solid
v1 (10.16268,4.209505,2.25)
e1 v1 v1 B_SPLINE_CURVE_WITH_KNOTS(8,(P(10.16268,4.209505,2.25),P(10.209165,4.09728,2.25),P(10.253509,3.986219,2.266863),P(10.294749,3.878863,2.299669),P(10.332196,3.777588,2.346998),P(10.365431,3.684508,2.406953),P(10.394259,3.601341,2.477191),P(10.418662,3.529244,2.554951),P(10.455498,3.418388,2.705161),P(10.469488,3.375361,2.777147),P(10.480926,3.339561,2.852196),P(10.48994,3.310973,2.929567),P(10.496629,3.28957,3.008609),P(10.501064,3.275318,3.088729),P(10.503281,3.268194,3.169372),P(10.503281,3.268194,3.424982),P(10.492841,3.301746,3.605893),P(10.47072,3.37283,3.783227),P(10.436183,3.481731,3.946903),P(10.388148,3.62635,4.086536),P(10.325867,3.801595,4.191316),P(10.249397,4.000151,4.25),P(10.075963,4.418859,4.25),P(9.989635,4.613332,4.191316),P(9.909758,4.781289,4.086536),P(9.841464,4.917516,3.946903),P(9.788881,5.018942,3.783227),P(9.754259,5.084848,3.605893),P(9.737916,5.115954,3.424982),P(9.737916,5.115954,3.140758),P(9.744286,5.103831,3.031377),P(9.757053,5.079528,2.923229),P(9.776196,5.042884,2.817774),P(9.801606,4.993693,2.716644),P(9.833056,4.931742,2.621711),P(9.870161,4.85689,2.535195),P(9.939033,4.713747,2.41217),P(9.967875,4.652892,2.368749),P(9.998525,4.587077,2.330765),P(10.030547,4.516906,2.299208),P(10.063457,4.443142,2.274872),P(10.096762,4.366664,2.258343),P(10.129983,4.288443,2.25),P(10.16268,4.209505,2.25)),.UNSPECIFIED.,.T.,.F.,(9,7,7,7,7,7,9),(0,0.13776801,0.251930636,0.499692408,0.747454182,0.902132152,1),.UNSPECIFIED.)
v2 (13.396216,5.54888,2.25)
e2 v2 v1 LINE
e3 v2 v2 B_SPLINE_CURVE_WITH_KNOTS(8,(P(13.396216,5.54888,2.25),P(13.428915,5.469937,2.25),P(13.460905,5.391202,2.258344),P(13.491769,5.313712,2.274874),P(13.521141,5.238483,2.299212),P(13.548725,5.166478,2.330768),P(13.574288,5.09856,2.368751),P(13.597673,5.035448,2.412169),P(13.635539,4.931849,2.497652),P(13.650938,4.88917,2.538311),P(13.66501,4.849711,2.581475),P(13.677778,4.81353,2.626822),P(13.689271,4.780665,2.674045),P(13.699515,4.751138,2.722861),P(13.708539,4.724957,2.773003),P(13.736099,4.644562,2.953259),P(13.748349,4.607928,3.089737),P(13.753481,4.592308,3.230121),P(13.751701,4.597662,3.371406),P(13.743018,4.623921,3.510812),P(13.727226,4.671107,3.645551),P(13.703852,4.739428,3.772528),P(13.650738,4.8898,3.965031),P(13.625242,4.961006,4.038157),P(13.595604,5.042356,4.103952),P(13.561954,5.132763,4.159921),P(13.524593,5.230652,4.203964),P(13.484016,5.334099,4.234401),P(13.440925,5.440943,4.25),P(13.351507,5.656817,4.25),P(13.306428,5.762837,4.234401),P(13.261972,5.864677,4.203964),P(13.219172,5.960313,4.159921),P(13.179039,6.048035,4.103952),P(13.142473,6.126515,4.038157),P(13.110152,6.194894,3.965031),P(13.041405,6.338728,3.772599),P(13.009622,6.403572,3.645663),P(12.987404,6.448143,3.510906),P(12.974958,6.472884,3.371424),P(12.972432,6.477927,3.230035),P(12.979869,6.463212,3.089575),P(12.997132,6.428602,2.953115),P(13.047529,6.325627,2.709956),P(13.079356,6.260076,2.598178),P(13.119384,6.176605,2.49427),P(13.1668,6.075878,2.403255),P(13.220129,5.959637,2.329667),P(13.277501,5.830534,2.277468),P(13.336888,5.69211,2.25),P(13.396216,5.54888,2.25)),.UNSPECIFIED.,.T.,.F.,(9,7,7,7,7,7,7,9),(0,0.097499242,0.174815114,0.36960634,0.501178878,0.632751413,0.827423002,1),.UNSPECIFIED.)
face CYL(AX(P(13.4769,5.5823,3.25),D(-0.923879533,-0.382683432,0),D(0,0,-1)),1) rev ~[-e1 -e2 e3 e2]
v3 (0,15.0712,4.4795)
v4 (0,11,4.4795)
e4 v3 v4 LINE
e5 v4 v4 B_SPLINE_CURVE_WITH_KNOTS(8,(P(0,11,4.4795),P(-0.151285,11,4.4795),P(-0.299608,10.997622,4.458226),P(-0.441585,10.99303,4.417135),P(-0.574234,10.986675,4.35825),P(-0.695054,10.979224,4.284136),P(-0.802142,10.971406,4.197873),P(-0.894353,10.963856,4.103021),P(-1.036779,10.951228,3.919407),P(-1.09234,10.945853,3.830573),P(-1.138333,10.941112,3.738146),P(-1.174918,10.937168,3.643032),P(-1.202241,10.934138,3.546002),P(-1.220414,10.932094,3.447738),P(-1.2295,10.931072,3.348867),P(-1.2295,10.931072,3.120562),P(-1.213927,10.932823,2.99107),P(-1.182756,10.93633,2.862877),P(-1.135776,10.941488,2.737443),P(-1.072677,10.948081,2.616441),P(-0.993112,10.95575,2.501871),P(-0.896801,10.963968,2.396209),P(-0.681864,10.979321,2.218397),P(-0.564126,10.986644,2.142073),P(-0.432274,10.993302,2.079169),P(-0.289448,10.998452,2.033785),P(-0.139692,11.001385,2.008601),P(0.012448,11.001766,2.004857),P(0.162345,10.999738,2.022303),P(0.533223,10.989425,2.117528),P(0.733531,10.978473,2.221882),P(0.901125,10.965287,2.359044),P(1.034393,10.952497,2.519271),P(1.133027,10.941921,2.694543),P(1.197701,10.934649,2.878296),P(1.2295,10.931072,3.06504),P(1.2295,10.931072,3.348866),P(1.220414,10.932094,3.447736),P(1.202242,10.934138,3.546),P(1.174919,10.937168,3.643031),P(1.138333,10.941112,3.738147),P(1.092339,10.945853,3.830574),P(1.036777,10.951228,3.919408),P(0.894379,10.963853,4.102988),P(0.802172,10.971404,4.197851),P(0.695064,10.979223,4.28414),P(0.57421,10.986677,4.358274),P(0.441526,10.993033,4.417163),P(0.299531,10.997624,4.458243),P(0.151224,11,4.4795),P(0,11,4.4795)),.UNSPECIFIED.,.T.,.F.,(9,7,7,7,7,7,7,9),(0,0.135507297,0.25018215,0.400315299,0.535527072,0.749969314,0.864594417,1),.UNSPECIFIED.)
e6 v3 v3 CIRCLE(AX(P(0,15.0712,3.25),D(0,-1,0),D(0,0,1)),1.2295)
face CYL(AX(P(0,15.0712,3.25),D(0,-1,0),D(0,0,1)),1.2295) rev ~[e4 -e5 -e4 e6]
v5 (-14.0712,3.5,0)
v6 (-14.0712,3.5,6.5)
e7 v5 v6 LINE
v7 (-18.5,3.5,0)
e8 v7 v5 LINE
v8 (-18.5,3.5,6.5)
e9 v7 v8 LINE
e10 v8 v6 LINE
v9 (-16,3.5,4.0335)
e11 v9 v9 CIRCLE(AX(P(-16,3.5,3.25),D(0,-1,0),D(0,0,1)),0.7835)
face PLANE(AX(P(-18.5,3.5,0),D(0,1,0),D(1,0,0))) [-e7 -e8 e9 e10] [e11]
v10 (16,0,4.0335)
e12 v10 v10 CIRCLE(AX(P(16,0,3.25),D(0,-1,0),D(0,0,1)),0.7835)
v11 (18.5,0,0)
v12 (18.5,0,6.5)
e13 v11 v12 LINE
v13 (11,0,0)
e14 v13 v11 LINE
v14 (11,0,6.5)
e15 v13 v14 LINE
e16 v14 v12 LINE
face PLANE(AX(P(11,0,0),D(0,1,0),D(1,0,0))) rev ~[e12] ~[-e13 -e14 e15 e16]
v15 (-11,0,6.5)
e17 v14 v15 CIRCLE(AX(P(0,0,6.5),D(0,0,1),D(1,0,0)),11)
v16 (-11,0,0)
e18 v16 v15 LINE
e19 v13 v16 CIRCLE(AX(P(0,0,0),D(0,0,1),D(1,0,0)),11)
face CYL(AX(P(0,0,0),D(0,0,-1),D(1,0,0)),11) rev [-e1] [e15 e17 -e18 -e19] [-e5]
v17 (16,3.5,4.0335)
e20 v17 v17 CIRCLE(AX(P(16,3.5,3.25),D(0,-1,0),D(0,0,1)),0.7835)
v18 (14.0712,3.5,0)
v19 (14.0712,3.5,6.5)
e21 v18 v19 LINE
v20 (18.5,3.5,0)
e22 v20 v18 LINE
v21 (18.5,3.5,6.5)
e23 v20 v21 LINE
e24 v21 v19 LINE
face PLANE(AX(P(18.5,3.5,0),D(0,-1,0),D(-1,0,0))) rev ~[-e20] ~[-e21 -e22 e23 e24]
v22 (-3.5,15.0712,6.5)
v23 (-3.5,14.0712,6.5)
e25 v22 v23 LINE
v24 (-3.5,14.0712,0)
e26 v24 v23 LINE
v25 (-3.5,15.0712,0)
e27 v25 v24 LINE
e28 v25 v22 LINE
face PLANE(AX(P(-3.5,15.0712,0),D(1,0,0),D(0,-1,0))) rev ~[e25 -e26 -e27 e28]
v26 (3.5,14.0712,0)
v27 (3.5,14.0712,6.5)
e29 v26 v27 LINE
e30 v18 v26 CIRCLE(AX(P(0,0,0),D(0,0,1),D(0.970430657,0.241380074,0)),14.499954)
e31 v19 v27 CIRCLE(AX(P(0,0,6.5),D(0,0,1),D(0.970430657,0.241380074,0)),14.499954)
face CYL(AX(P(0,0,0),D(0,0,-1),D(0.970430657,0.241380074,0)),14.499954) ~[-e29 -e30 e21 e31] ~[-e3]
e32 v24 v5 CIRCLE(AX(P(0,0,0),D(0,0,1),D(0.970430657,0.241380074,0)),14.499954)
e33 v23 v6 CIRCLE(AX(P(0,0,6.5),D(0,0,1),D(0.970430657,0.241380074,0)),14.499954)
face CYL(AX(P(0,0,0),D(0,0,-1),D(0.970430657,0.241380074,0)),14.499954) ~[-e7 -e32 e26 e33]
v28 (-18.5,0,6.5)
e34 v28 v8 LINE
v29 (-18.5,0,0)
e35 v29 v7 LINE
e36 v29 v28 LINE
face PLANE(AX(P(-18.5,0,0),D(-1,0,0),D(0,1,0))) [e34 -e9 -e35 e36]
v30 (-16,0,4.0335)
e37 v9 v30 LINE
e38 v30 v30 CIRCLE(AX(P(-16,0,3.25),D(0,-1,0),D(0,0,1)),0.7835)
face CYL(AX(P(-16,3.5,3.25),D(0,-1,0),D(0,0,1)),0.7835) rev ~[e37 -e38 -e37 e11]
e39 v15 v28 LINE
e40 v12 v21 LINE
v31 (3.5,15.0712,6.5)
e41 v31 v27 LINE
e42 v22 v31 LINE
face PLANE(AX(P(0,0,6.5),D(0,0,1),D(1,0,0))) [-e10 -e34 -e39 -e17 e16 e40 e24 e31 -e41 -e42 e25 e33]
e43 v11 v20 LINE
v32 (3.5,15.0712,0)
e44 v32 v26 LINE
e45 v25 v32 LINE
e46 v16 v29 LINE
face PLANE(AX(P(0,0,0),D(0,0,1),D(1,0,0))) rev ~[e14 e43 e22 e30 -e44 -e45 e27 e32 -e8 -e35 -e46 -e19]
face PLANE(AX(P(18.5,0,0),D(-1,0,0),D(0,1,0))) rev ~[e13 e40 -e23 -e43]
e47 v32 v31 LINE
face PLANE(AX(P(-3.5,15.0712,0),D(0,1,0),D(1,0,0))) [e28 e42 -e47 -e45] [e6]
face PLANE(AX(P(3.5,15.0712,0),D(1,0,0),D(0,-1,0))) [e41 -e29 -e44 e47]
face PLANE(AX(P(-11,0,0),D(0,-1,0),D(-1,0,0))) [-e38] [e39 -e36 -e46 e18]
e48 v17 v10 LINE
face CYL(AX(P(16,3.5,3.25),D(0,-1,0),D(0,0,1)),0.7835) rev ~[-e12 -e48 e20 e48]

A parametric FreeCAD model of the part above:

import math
import FreeCAD as App
import Part
import Sketcher
from FreeCAD import Vector
Q = App.Units.Quantity

doc = App.newDocument("Part")
body = doc.addObject("PartDesign::Body", "Body")

# Sketch on XY plane
sketch1 = doc.addObject("Sketcher::SketchObject", "Sketch")
body.addObject(sketch1)
sketch1.AttachmentSupport = (doc.XY_Plane, [""])
sketch1.MapMode = "FlatFace"
sketch1.addGeometry(Part.ArcOfCircle(Part.Circle(Vector(0, 0, 0), Vector(0, 0, 1), 11), math.radians(0), math.radians(180)), False)
sketch1.addGeometry(Part.LineSegment(Vector(11, 0, 0), Vector(18.5, 0, 0)), False)
sketch1.addGeometry(Part.LineSegment(Vector(18.5, 0, 0), Vector(18.5, 3.5, 0)), False)
sketch1.addGeometry(Part.LineSegment(Vector(18.5, 3.5, 0), Vector(14.0712, 3.5, 0)), False)
sketch1.addGeometry(Part.ArcOfCircle(Part.Circle(Vector(0, 0, 0), Vector(0, 0, 1), 14.499954), math.radians(13.968008), math.radians(76.031992)), False)
sketch1.addGeometry(Part.LineSegment(Vector(3.5, 14.0712, 0), Vector(3.5, 15.0712, 0)), False)
sketch1.addGeometry(Part.LineSegment(Vector(3.5, 15.0712, 0), Vector(-3.5, 15.0712, 0)), False)
sketch1.addGeometry(Part.LineSegment(Vector(-3.5, 15.0712, 0), Vector(-3.5, 14.0712, 0)), False)
sketch1.addGeometry(Part.ArcOfCircle(Part.Circle(Vector(0, 0, 0), Vector(0, 0, 1), 14.499954), math.radians(103.968008), math.radians(166.031992)), False)
sketch1.addGeometry(Part.LineSegment(Vector(-14.0712, 3.5, 0), Vector(-18.5, 3.5, 0)), False)
sketch1.addGeometry(Part.LineSegment(Vector(-18.5, 3.5, 0), Vector(-18.5, 0, 0)), False)
sketch1.addGeometry(Part.LineSegment(Vector(-18.5, 0, 0), Vector(-11, 0, 0)), False)
sketch1.addConstraint(Sketcher.Constraint("Coincident", 0, 1, 1, 1))
sketch1.addConstraint(Sketcher.Constraint("Coincident", 1, 2, 2, 1))
sketch1.addConstraint(Sketcher.Constraint("Coincident", 2, 2, 3, 1))
sketch1.addConstraint(Sketcher.Constraint("Coincident", 3, 2, 4, 1))
sketch1.addConstraint(Sketcher.Constraint("Coincident", 4, 2, 5, 1))
sketch1.addConstraint(Sketcher.Constraint("Coincident", 5, 2, 6, 1))
sketch1.addConstraint(Sketcher.Constraint("Coincident", 6, 2, 7, 1))
sketch1.addConstraint(Sketcher.Constraint("Coincident", 7, 2, 8, 1))
sketch1.addConstraint(Sketcher.Constraint("Coincident", 8, 2, 9, 1))
sketch1.addConstraint(Sketcher.Constraint("Coincident", 9, 2, 10, 1))
sketch1.addConstraint(Sketcher.Constraint("Coincident", 10, 2, 11, 1))
sketch1.addConstraint(Sketcher.Constraint("Coincident", 11, 2, 0, 2))
sketch1.addConstraint(Sketcher.Constraint("Horizontal", 1))
sketch1.addConstraint(Sketcher.Constraint("Vertical", 2))
sketch1.addConstraint(Sketcher.Constraint("Horizontal", 3))
sketch1.addConstraint(Sketcher.Constraint("Vertical", 5))
sketch1.addConstraint(Sketcher.Constraint("Horizontal", 6))
sketch1.addConstraint(Sketcher.Constraint("Vertical", 7))
sketch1.addConstraint(Sketcher.Constraint("Horizontal", 9))
sketch1.addConstraint(Sketcher.Constraint("Vertical", 10))
sketch1.addConstraint(Sketcher.Constraint("Horizontal", 11))
sketch1.addConstraint(Sketcher.Constraint("Coincident", 0, 3, -1, 1))
sketch1.addConstraint(Sketcher.Constraint("Coincident", 4, 3, -1, 1))
sketch1.addConstraint(Sketcher.Constraint("Coincident", 8, 3, -1, 1))
sketch1.addConstraint(Sketcher.Constraint("Equal", 4, 8))
sketch1.addConstraint(Sketcher.Constraint("Symmetric", 1, 2, 10, 2, -1, 1))
sketch1.addConstraint(Sketcher.Constraint("PointOnObject", 0, 1, -1))
sketch1.addConstraint(Sketcher.Constraint("Horizontal", 4, 2, 7, 2))
sketch1.addConstraint(Sketcher.Constraint("Horizontal", 3, 2, 8, 2))
sketch1.addConstraint(Sketcher.Constraint("Radius", 0, Q("11 mm")))
sketch1.addConstraint(Sketcher.Constraint("Radius", 4, Q("14.5 mm")))
sketch1.addConstraint(Sketcher.Constraint("DistanceX", 6, 2, 6, 1, Q("7 mm")))
sketch1.addConstraint(Sketcher.Constraint("DistanceY", 5, 1, 5, 2, Q("1 mm")))
sketch1.addConstraint(Sketcher.Constraint("DistanceX", 1, 1, 1, 2, Q("7.5 mm")))
sketch1.addConstraint(Sketcher.Constraint("DistanceY", 2, 1, 2, 2, Q("3.5 mm")))
pad1 = doc.addObject("PartDesign::Pad", "Pad")
body.addObject(pad1)
pad1.Profile = sketch1
pad1.Length = 6.5

# Sketch on an angled plane
sketch2 = doc.addObject("Sketcher::SketchObject", "Sketch001")
body.addObject(sketch2)
sketch2.Placement = App.Placement(Vector(13.476895, 5.582313, 0), App.Rotation(Vector(-0.382683432, 0.923879533, 0), Vector(0, 0, 1.000000001), Vector(0.923879533, 0.382683432, 0), "ZXY"))
sketch2.addGeometry(Part.Circle(Vector(-0.000014, 3.25, 0), Vector(0, 0, 1), 1), False)
sketch2.addConstraint(Sketcher.Constraint("PointOnObject", 0, 3, -2))
sketch2.addConstraint(Sketcher.Constraint("Diameter", 0, Q("2 mm")))
sketch2.addConstraint(Sketcher.Constraint("DistanceY", -1, 1, 0, 3, Q("3.25 mm")))
doc.recompute()
hole = doc.addObject("PartDesign::Hole", "Hole")
body.addObject(hole)
hole.Profile = sketch2
hole.ThreadType = "None"
hole.Diameter = 2
hole.DepthType = "ThroughAll"

# Sketch on XZ plane
sketch3 = doc.addObject("Sketcher::SketchObject", "Sketch002")
body.addObject(sketch3)
sketch3.AttachmentSupport = (doc.XZ_Plane, [""])
sketch3.MapMode = "FlatFace"
sketch3.AttachmentOffset = App.Placement(Vector(0, 0, -15.0712), App.Rotation())
sketch3.addGeometry(Part.Circle(Vector(0, 3.25, 0), Vector(0, 0, 1), 1.2295), False)
sketch3.addConstraint(Sketcher.Constraint("PointOnObject", 0, 3, -2))
sketch3.addConstraint(Sketcher.Constraint("Diameter", 0, Q("2.459 mm")))
sketch3.addConstraint(Sketcher.Constraint("DistanceY", -1, 1, 0, 3, Q("3.25 mm")))
doc.recompute()
hole2 = doc.addObject("PartDesign::Hole", "Hole001")
body.addObject(hole2)
hole2.Profile = sketch3
hole2.ThreadType = "None"
hole2.Diameter = 2.459
hole2.DepthType = "ThroughAll"
hole2.Reversed = True

# Sketch on XZ plane
sketch4 = doc.addObject("Sketcher::SketchObject", "Sketch003")
body.addObject(sketch4)
sketch4.AttachmentSupport = (doc.XZ_Plane, [""])
sketch4.MapMode = "FlatFace"
sketch4.AttachmentOffset = App.Placement(Vector(0, 0, -3.5), App.Rotation())
sketch4.addGeometry(Part.Circle(Vector(-16, 3.25, 0), Vector(0, 0, 1), 0.7835), False)
sketch4.addGeometry(Part.Circle(Vector(16, 3.25, 0), Vector(0, 0, 1), 0.7835), False)
sketch4.addConstraint(Sketcher.Constraint("Equal", 0, 1))
sketch4.addConstraint(Sketcher.Constraint("Symmetric", 0, 3, 1, 3, -2))
sketch4.addConstraint(Sketcher.Constraint("Diameter", 0, Q("1.567 mm")))
sketch4.addConstraint(Sketcher.Constraint("DistanceX", 0, 3, -1, 1, Q("16 mm")))
sketch4.addConstraint(Sketcher.Constraint("DistanceY", -1, 1, 0, 3, Q("3.25 mm")))
doc.recompute()
hole3 = doc.addObject("PartDesign::Hole", "Hole002")
body.addObject(hole3)
hole3.Profile = sketch4
hole3.ThreadType = "None"
hole3.Diameter = 1.567
hole3.DepthType = "ThroughAll"
hole3.Reversed = True

doc.recompute()
